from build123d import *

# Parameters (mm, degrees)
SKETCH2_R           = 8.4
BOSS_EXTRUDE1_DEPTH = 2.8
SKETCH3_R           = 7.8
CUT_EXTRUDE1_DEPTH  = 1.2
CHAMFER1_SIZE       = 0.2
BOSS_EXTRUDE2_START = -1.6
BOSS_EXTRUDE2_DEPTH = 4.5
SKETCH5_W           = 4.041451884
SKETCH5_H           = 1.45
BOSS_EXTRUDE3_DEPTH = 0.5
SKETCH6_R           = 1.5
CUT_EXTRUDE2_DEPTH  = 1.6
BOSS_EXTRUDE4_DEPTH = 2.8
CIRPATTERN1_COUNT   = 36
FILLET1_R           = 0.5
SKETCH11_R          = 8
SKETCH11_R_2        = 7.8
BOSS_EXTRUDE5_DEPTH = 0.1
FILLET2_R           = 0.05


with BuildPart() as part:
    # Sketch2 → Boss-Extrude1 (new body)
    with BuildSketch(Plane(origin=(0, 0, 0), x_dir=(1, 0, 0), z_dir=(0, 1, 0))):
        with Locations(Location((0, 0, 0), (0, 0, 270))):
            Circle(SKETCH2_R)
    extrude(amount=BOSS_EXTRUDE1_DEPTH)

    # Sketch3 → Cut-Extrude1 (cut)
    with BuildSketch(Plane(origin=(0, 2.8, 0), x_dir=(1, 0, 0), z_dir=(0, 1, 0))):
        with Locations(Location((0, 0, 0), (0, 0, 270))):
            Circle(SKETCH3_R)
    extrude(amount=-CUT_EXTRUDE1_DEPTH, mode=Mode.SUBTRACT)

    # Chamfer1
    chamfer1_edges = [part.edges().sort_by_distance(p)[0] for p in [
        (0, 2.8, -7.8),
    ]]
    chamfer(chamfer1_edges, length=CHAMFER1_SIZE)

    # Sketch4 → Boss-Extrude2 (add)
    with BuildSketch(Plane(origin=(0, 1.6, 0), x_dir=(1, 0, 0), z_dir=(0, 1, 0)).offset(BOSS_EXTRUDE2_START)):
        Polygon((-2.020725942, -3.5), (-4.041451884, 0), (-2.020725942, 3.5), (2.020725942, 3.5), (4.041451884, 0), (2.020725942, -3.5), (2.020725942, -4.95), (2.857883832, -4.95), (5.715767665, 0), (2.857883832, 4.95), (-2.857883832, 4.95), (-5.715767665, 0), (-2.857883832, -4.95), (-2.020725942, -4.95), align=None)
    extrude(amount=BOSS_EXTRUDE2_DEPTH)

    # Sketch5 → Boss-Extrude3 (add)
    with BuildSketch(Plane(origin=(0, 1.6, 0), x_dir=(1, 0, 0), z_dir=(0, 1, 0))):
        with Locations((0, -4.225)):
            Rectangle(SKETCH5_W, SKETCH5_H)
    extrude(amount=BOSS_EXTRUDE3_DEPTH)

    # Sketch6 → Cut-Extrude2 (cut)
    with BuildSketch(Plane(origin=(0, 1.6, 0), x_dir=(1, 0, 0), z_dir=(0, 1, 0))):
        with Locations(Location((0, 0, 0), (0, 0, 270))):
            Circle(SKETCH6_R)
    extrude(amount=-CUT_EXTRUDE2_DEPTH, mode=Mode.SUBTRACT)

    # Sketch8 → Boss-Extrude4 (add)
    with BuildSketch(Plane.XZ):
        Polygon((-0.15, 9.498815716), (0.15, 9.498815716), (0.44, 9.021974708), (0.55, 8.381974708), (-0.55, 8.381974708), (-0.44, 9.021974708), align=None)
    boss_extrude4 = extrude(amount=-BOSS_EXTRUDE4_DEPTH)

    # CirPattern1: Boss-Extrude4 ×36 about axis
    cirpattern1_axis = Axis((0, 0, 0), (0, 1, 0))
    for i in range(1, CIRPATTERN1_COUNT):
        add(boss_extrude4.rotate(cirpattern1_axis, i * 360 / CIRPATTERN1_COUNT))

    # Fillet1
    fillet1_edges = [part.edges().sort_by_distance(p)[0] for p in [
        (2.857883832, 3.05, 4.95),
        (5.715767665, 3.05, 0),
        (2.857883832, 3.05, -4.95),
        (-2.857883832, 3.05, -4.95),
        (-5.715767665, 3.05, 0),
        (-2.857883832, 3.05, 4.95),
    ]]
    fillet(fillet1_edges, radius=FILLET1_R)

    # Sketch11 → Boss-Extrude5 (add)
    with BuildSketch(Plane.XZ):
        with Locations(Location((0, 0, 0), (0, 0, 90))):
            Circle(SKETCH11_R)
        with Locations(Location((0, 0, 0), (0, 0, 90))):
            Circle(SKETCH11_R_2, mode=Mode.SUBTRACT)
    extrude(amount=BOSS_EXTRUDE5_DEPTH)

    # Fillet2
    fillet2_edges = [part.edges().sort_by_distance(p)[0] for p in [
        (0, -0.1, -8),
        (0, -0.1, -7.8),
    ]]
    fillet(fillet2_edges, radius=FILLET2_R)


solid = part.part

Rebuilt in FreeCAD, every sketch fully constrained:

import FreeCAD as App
import Part
import Sketcher
Q = App.Units.Quantity


def edges_at(feature, points):
    """Names of the edges that pass closest to the given points."""
    edges = feature.Shape.Edges
    near = lambda p: min(range(len(edges)), key=lambda i: edges[i].distToShape(Part.Vertex(*p))[0])
    return sorted({f"Edge{near(p) + 1}" for p in points})

doc = App.newDocument("Part")
body = doc.addObject("PartDesign::Body", "Body")

# Sketch on XZ plane
sketch1 = doc.addObject("Sketcher::SketchObject", "Sketch")
body.addObject(sketch1)
sketch1.AttachmentSupport = (doc.XZ_Plane, [""])
sketch1.MapMode = "FlatFace"
sketch1.addGeometry(Part.Circle(App.Vector(0, 0, 0), App.Vector(0, 0, 1), 8.4), False)
sketch1.addConstraint([
    Sketcher.Constraint("Coincident", 0, 3, -1, 1),
    Sketcher.Constraint("Diameter", 0, Q("16.8 mm")),
])
pad1 = doc.addObject("PartDesign::Pad", "Pad")
body.addObject(pad1)
pad1.Profile = sketch1
pad1.Length = 2.8
pad1.Reversed = True

# Sketch on XZ plane
sketch2 = doc.addObject("Sketcher::SketchObject", "Sketch001")
body.addObject(sketch2)
sketch2.AttachmentSupport = (doc.XZ_Plane, [""])
sketch2.MapMode = "FlatFace"
sketch2.AttachmentOffset = App.Placement(App.Vector(0, 0, -2.8), App.Rotation())
sketch2.addGeometry(Part.Circle(App.Vector(0, 0, 0), App.Vector(0, 0, 1), 7.8), False)
sketch2.addConstraint([
    Sketcher.Constraint("Coincident", 0, 3, -1, 1),
    Sketcher.Constraint("Diameter", 0, Q("15.6 mm")),
])
pocket1 = doc.addObject("PartDesign::Pocket", "Pocket")
body.addObject(pocket1)
pocket1.Profile = sketch2
pocket1.Length = 1.2
pocket1.Reversed = True
doc.recompute()

chamfer = doc.addObject("PartDesign::Chamfer", "Chamfer")
body.addObject(chamfer)
chamfer.Base = (pocket1, edges_at(pocket1, [(0, 2.8, -7.8)]))
chamfer.Size = 0.2

# Sketch on XZ plane
sketch3 = doc.addObject("Sketcher::SketchObject", "Sketch002")
body.addObject(sketch3)
sketch3.AttachmentSupport = (doc.XZ_Plane, [""])
sketch3.MapMode = "FlatFace"
sketch3.addGeometry([
    Part.LineSegment(App.Vector(-2.020726, 3.5, 0), App.Vector(-4.041452, 0, 0)),  # 0
    Part.LineSegment(App.Vector(-4.041452, 0, 0), App.Vector(-2.020726, -3.5, 0)),  # 1
    Part.LineSegment(App.Vector(-2.020726, -3.5, 0), App.Vector(2.020726, -3.5, 0)),  # 2
    Part.LineSegment(App.Vector(2.020726, -3.5, 0), App.Vector(4.041452, 0, 0)),  # 3
    Part.LineSegment(App.Vector(4.041452, 0, 0), App.Vector(2.020726, 3.5, 0)),  # 4
    Part.LineSegment(App.Vector(2.020726, 3.5, 0), App.Vector(2.020726, 4.95, 0)),  # 5
    Part.LineSegment(App.Vector(2.020726, 4.95, 0), App.Vector(2.857884, 4.95, 0)),  # 6
    Part.LineSegment(App.Vector(2.857884, 4.95, 0), App.Vector(5.715768, 0, 0)),  # 7
    Part.LineSegment(App.Vector(5.715768, 0, 0), App.Vector(2.857884, -4.95, 0)),  # 8
    Part.LineSegment(App.Vector(2.857884, -4.95, 0), App.Vector(-2.857884, -4.95, 0)),  # 9
    Part.LineSegment(App.Vector(-2.857884, -4.95, 0), App.Vector(-5.715768, 0, 0)),  # 10
    Part.LineSegment(App.Vector(-5.715768, 0, 0), App.Vector(-2.857884, 4.95, 0)),  # 11
    Part.LineSegment(App.Vector(-2.857884, 4.95, 0), App.Vector(-2.020726, 4.95, 0)),  # 12
    Part.LineSegment(App.Vector(-2.020726, 4.95, 0), App.Vector(-2.020726, 3.5, 0)),  # 13
], False)
sketch3.addConstraint([
    Sketcher.Constraint("Coincident", 0, 2, 1, 1),
    Sketcher.Constraint("Coincident", 1, 2, 2, 1),
    Sketcher.Constraint("Coincident", 2, 2, 3, 1),
    Sketcher.Constraint("Coincident", 3, 2, 4, 1),
    Sketcher.Constraint("Coincident", 4, 2, 5, 1),
    Sketcher.Constraint("Coincident", 5, 2, 6, 1),
    Sketcher.Constraint("Coincident", 6, 2, 7, 1),
    Sketcher.Constraint("Coincident", 7, 2, 8, 1),
    Sketcher.Constraint("Coincident", 8, 2, 9, 1),
    Sketcher.Constraint("Coincident", 9, 2, 10, 1),
    Sketcher.Constraint("Coincident", 10, 2, 11, 1),
    Sketcher.Constraint("Coincident", 11, 2, 12, 1),
    Sketcher.Constraint("Coincident", 12, 2, 13, 1),
    Sketcher.Constraint("Coincident", 13, 2, 0, 1),
    Sketcher.Constraint("Horizontal", 2),
    Sketcher.Constraint("Vertical", 5),
    Sketcher.Constraint("Horizontal", 6),
    Sketcher.Constraint("Horizontal", 9),
    Sketcher.Constraint("Horizontal", 12),
    Sketcher.Constraint("Vertical", 13),
    Sketcher.Constraint("Symmetric", 0, 2, 3, 2, -1, 1),
    Sketcher.Constraint("Symmetric", 1, 2, 4, 2, -1, 1),
    Sketcher.Constraint("Symmetric", 6, 2, 9, 2, -1, 1),
    Sketcher.Constraint("Symmetric", 7, 2, 10, 2, -1, 1),
    Sketcher.Constraint("Symmetric", 8, 2, 11, 2, -1, 1),
    Sketcher.Constraint("Symmetric", 2, 2, 13, 2, -1, 1),
    Sketcher.Constraint("PointOnObject", 0, 2, -1),
    Sketcher.Constraint("PointOnObject", 7, 2, -1),
    Sketcher.Constraint("Parallel", 4, 7),
    Sketcher.Constraint("Parallel", 3, 8),
    Sketcher.Constraint("Vertical", 2, 2, 4, 2),
    Sketcher.Constraint("Angle", 0, Q("-120 deg")),
    Sketcher.Constraint("DistanceY", 2, 2, 4, 2, Q("7 mm")),
    Sketcher.Constraint("DistanceY", 5, 1, 5, 2, Q("1.45 mm")),
    Sketcher.Constraint("DistanceX", 2, 1, 2, 2, Q("4.041452 mm")),
    Sketcher.Constraint("DistanceX", 6, 1, 6, 2, Q("0.837158 mm")),
])
pad2 = doc.addObject("PartDesign::Pad", "Pad001")
body.addObject(pad2)
pad2.Profile = sketch3
pad2.Length = 4.5
pad2.Reversed = True

# Sketch on XZ plane
sketch4 = doc.addObject("Sketcher::SketchObject", "Sketch003")
body.addObject(sketch4)
sketch4.AttachmentSupport = (doc.XZ_Plane, [""])
sketch4.MapMode = "FlatFace"
sketch4.AttachmentOffset = App.Placement(App.Vector(0, 0, -1.6), App.Rotation())
sketch4.addGeometry([
    Part.LineSegment(App.Vector(-2.020726, 3.5, 0), App.Vector(-2.020726, 4.95, 0)),
    Part.LineSegment(App.Vector(-2.020726, 4.95, 0), App.Vector(2.020726, 4.95, 0)),
    Part.LineSegment(App.Vector(2.020726, 4.95, 0), App.Vector(2.020726, 3.5, 0)),
    Part.LineSegment(App.Vector(2.020726, 3.5, 0), App.Vector(-2.020726, 3.5, 0)),
], False)
sketch4.addConstraint([
    Sketcher.Constraint("Coincident", 0, 2, 1, 1),
    Sketcher.Constraint("Coincident", 1, 2, 2, 1),
    Sketcher.Constraint("Coincident", 2, 2, 3, 1),
    Sketcher.Constraint("Coincident", 3, 2, 0, 1),
    Sketcher.Constraint("Vertical", 0),
    Sketcher.Constraint("Horizontal", 1),
    Sketcher.Constraint("Vertical", 2),
    Sketcher.Constraint("Horizontal", 3),
    Sketcher.Constraint("DistanceY", 0, 1, 0, 2, Q("1.45 mm")),
    Sketcher.Constraint("DistanceY", -1, 1, 2, 2, Q("3.5 mm")),
    Sketcher.Constraint("DistanceX", 1, 1, 1, 2, Q("4.041452 mm")),
    Sketcher.Constraint("DistanceX", 0, 2, -1, 1, Q("2.020726 mm")),
])
pad3 = doc.addObject("PartDesign::Pad", "Pad002")
body.addObject(pad3)
pad3.Profile = sketch4
pad3.Length = 0.5
pad3.Reversed = True

# Sketch on XZ plane
sketch5 = doc.addObject("Sketcher::SketchObject", "Sketch004")
body.addObject(sketch5)
sketch5.AttachmentSupport = (doc.XZ_Plane, [""])
sketch5.MapMode = "FlatFace"
sketch5.AttachmentOffset = App.Placement(App.Vector(0, 0, -1.6), App.Rotation())
sketch5.addGeometry(Part.Circle(App.Vector(0, 0, 0), App.Vector(0, 0, 1), 1.5), False)
sketch5.addConstraint([
    Sketcher.Constraint("Coincident", 0, 3, -1, 1),
    Sketcher.Constraint("Diameter", 0, Q("3 mm")),
])
pocket2 = doc.addObject("PartDesign::Pocket", "Pocket001")
body.addObject(pocket2)
pocket2.Profile = sketch5
pocket2.Length = 1.6
pocket2.Reversed = True

# Sketch on XZ plane
sketch6 = doc.addObject("Sketcher::SketchObject", "Sketch005")
body.addObject(sketch6)
sketch6.AttachmentSupport = (doc.XZ_Plane, [""])
sketch6.MapMode = "FlatFace"
sketch6.addGeometry([
    Part.LineSegment(App.Vector(0.15, 9.498816, 0), App.Vector(-0.15, 9.498816, 0)),  # 0
    Part.LineSegment(App.Vector(-0.15, 9.498816, 0), App.Vector(-0.44, 9.021975, 0)),  # 1
    Part.LineSegment(App.Vector(-0.44, 9.021975, 0), App.Vector(-0.55, 8.381975, 0)),  # 2
    Part.LineSegment(App.Vector(-0.55, 8.381975, 0), App.Vector(0.55, 8.381975, 0)),  # 3
    Part.LineSegment(App.Vector(0.55, 8.381975, 0), App.Vector(0.44, 9.021975, 0)),  # 4
    Part.LineSegment(App.Vector(0.44, 9.021975, 0), App.Vector(0.15, 9.498816, 0)),  # 5
], False)
sketch6.addConstraint([
    Sketcher.Constraint("Coincident", 0, 2, 1, 1),
    Sketcher.Constraint("Coincident", 1, 2, 2, 1),
    Sketcher.Constraint("Coincident", 2, 2, 3, 1),
    Sketcher.Constraint("Coincident", 3, 2, 4, 1),
    Sketcher.Constraint("Coincident", 4, 2, 5, 1),
    Sketcher.Constraint("Coincident", 5, 2, 0, 1),
    Sketcher.Constraint("Horizontal", 0),
    Sketcher.Constraint("Horizontal", 3),
    Sketcher.Constraint("Symmetric", 1, 2, 4, 2, -2),
    Sketcher.Constraint("Equal", 2, 4),
    Sketcher.Constraint("Equal", 1, 5),
    Sketcher.Constraint("DistanceX", 0, 2, 0, 1, Q("0.3 mm")),
    Sketcher.Constraint("DistanceX", 3, 1, 3, 2, Q("1.1 mm")),
    Sketcher.Constraint("DistanceX", 1, 2, -1, 1, Q("0.44 mm")),
    Sketcher.Constraint("DistanceY", 2, 2, 1, 2, Q("0.64 mm")),
    Sketcher.Constraint("Distance", 1, Q("0.558102 mm")),
    Sketcher.Constraint("DistanceY", -1, 1, 0, 2, Q("9.498816 mm")),
])
pad4 = doc.addObject("PartDesign::Pad", "Pad003")
body.addObject(pad4)
pad4.Profile = sketch6
pad4.Length = 2.8
pad4.Reversed = True
doc.recompute()

polarpattern = doc.addObject("PartDesign::PolarPattern", "PolarPattern")
body.addObject(polarpattern)
polarpattern.Originals = [pad4]
polarpattern.Axis = (doc.Y_Axis, [""])
polarpattern.Angle = 360
polarpattern.Occurrences = 36
body.Tip = polarpattern
doc.recompute()

fillet = doc.addObject("PartDesign::Fillet", "Fillet")
body.addObject(fillet)
fillet.Base = (polarpattern, edges_at(polarpattern, [
    (2.858, 3.05, 4.95),
    (5.716, 3.05, 0),
    (2.858, 3.05, -4.95),
    (-2.858, 3.05, -4.95),
    (-5.716, 3.05, 0),
    (-2.858, 3.05, 4.95),
]))
fillet.Radius = 0.5

# Sketch on XZ plane
sketch7 = doc.addObject("Sketcher::SketchObject", "Sketch006")
body.addObject(sketch7)
sketch7.AttachmentSupport = (doc.XZ_Plane, [""])
sketch7.MapMode = "FlatFace"
sketch7.addGeometry([
    Part.Circle(App.Vector(0, 0, 0), App.Vector(0, 0, 1), 8),
    Part.Circle(App.Vector(0, 0, 0), App.Vector(0, 0, 1), 7.8),
], False)
sketch7.addConstraint([
    Sketcher.Constraint("Coincident", 0, 3, -1, 1),
    Sketcher.Constraint("Coincident", 1, 3, -1, 1),
    Sketcher.Constraint("Diameter", 0, Q("16 mm")),
    Sketcher.Constraint("Diameter", 1, Q("15.6 mm")),
])
pad5 = doc.addObject("PartDesign::Pad", "Pad004")
body.addObject(pad5)
pad5.Profile = sketch7
pad5.Length = 0.1
doc.recompute()

fillet2 = doc.addObject("PartDesign::Fillet", "Fillet001")
body.addObject(fillet2)
fillet2.Base = (pad5, edges_at(pad5, [(0, -0.1, -8), (0, -0.1, -7.8)]))
fillet2.Radius = 0.05

doc.recompute()
